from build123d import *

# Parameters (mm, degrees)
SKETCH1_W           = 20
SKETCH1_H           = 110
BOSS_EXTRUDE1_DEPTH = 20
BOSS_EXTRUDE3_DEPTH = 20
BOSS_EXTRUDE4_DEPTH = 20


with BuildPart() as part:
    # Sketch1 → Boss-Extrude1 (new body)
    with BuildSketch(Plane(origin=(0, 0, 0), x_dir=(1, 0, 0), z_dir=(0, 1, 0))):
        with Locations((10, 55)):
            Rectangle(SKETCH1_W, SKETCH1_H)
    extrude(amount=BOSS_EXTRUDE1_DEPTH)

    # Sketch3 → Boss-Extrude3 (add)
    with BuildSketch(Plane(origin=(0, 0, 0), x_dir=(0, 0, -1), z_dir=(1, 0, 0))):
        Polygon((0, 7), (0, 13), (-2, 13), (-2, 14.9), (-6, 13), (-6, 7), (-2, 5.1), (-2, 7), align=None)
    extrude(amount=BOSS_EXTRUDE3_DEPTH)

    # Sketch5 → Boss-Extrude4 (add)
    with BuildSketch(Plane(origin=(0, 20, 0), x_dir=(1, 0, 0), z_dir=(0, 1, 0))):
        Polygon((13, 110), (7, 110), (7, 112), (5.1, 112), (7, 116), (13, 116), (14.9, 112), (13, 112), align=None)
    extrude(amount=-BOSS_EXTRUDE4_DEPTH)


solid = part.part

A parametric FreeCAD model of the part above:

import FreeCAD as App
import Part
import Sketcher

V = App.Vector
Q = App.Units.Quantity


def add_polygon(sketch, points):
    """Adds a closed chain of lines whose ends are joined by coincident constraints."""
    first, n = sketch.GeometryCount, len(points)
    for a, b in zip(points, points[1:] + points[:1]):
        sketch.addGeometry(Part.LineSegment(App.Vector(*a, 0), App.Vector(*b, 0)), False)
    for i in range(n):
        sketch.addConstraint(Sketcher.Constraint("Coincident", first + i, 2, first + (i + 1) % n, 1))

doc = App.newDocument("Part")
body = doc.addObject("PartDesign::Body", "Body")

# Sketch on XZ plane
sketch1 = body.newObject("Sketcher::SketchObject", "Sketch")
sketch1.AttachmentSupport = (doc.getObject("XZ_Plane"), [""])
sketch1.MapMode = "FlatFace"
add_polygon(sketch1, [(0, -110), (0, 0), (20, 0), (20, -110)])  # lines 0-3
sketch1.addConstraint([
    Sketcher.Constraint("Vertical", 0),
    Sketcher.Constraint("Horizontal", 1),
    Sketcher.Constraint("Vertical", 2),
    Sketcher.Constraint("Horizontal", 3),
    Sketcher.Constraint("Coincident", 0, 2, -1, 1),
    Sketcher.Constraint("DistanceX", 1, 1, 1, 2, Q("20 mm")),
    Sketcher.Constraint("DistanceY", 0, 1, 0, 2, Q("110 mm")),
])
pad1 = body.newObject("PartDesign::Pad", "Pad")
pad1.Profile = sketch1
pad1.Length = 20
pad1.Reversed = True

# Sketch on YZ plane
sketch2 = body.newObject("Sketcher::SketchObject", "Sketch001")
sketch2.AttachmentSupport = (doc.getObject("YZ_Plane"), [""])
sketch2.MapMode = "FlatFace"
add_polygon(sketch2, [(7, 0), (13, 0), (13, 2), (14.9, 2), (13, 6), (7, 6), (5.1, 2), (7, 2)])  # lines 0-7
sketch2.addConstraint([
    Sketcher.Constraint("Horizontal", 0),
    Sketcher.Constraint("Vertical", 1),
    Sketcher.Constraint("Horizontal", 2),
    Sketcher.Constraint("Horizontal", 4),
    Sketcher.Constraint("Horizontal", 6),
    Sketcher.Constraint("Vertical", 7),
    Sketcher.Constraint("PointOnObject", 0, 2, -1),
    Sketcher.Constraint("Horizontal", 2, 2, 5, 2),
    Sketcher.Constraint("Vertical", 1, 2, 3, 2),
    Sketcher.Constraint("Vertical", 4, 2, 6, 2),
    Sketcher.Constraint("Equal", 2, 6),
    Sketcher.Constraint("DistanceX", 0, 1, 0, 2, Q("6 mm")),
    Sketcher.Constraint("DistanceY", 1, 1, 1, 2, Q("2 mm")),
    Sketcher.Constraint("DistanceX", 2, 1, 2, 2, Q("1.9 mm")),
    Sketcher.Constraint("DistanceX", -1, 1, 0, 2, Q("13 mm")),
    Sketcher.Constraint("DistanceY", -1, 1, 3, 2, Q("6 mm")),
])
pad2 = body.newObject("PartDesign::Pad", "Pad001")
pad2.Profile = sketch2
pad2.Length = 20

# Sketch on XZ plane
sketch3 = body.newObject("Sketcher::SketchObject", "Sketch002")
sketch3.AttachmentSupport = (doc.getObject("XZ_Plane"), [""])
sketch3.MapMode = "FlatFace"
sketch3.AttachmentOffset = App.Placement(V(0, 0, -20), App.Rotation())
add_polygon(sketch3, [(7, -110), (13, -110), (13, -112), (14.9, -112), (13, -116), (7, -116), (5.1, -112), (7, -112)])  # lines 0-7
sketch3.addConstraint([
    Sketcher.Constraint("Horizontal", 0),
    Sketcher.Constraint("Vertical", 1),
    Sketcher.Constraint("Horizontal", 2),
    Sketcher.Constraint("Horizontal", 4),
    Sketcher.Constraint("Horizontal", 6),
    Sketcher.Constraint("Vertical", 7),
    Sketcher.Constraint("Horizontal", 2, 2, 5, 2),
    Sketcher.Constraint("Vertical", 1, 2, 3, 2),
    Sketcher.Constraint("Vertical", 4, 2, 6, 2),
    Sketcher.Constraint("Equal", 2, 6),
    Sketcher.Constraint("DistanceX", 0, 1, 0, 2, Q("6 mm")),
    Sketcher.Constraint("DistanceY", 1, 2, 1, 1, Q("2 mm")),
    Sketcher.Constraint("DistanceX", 2, 1, 2, 2, Q("1.9 mm")),
    Sketcher.Constraint("DistanceX", -1, 1, 0, 2, Q("13 mm")),
    Sketcher.Constraint("DistanceY", 0, 2, -1, 1, Q("110 mm")),
    Sketcher.Constraint("DistanceY", 3, 2, -1, 1, Q("116 mm")),
])
pad3 = body.newObject("PartDesign::Pad", "Pad002")
pad3.Profile = sketch3
pad3.Length = 20

doc.recompute()
